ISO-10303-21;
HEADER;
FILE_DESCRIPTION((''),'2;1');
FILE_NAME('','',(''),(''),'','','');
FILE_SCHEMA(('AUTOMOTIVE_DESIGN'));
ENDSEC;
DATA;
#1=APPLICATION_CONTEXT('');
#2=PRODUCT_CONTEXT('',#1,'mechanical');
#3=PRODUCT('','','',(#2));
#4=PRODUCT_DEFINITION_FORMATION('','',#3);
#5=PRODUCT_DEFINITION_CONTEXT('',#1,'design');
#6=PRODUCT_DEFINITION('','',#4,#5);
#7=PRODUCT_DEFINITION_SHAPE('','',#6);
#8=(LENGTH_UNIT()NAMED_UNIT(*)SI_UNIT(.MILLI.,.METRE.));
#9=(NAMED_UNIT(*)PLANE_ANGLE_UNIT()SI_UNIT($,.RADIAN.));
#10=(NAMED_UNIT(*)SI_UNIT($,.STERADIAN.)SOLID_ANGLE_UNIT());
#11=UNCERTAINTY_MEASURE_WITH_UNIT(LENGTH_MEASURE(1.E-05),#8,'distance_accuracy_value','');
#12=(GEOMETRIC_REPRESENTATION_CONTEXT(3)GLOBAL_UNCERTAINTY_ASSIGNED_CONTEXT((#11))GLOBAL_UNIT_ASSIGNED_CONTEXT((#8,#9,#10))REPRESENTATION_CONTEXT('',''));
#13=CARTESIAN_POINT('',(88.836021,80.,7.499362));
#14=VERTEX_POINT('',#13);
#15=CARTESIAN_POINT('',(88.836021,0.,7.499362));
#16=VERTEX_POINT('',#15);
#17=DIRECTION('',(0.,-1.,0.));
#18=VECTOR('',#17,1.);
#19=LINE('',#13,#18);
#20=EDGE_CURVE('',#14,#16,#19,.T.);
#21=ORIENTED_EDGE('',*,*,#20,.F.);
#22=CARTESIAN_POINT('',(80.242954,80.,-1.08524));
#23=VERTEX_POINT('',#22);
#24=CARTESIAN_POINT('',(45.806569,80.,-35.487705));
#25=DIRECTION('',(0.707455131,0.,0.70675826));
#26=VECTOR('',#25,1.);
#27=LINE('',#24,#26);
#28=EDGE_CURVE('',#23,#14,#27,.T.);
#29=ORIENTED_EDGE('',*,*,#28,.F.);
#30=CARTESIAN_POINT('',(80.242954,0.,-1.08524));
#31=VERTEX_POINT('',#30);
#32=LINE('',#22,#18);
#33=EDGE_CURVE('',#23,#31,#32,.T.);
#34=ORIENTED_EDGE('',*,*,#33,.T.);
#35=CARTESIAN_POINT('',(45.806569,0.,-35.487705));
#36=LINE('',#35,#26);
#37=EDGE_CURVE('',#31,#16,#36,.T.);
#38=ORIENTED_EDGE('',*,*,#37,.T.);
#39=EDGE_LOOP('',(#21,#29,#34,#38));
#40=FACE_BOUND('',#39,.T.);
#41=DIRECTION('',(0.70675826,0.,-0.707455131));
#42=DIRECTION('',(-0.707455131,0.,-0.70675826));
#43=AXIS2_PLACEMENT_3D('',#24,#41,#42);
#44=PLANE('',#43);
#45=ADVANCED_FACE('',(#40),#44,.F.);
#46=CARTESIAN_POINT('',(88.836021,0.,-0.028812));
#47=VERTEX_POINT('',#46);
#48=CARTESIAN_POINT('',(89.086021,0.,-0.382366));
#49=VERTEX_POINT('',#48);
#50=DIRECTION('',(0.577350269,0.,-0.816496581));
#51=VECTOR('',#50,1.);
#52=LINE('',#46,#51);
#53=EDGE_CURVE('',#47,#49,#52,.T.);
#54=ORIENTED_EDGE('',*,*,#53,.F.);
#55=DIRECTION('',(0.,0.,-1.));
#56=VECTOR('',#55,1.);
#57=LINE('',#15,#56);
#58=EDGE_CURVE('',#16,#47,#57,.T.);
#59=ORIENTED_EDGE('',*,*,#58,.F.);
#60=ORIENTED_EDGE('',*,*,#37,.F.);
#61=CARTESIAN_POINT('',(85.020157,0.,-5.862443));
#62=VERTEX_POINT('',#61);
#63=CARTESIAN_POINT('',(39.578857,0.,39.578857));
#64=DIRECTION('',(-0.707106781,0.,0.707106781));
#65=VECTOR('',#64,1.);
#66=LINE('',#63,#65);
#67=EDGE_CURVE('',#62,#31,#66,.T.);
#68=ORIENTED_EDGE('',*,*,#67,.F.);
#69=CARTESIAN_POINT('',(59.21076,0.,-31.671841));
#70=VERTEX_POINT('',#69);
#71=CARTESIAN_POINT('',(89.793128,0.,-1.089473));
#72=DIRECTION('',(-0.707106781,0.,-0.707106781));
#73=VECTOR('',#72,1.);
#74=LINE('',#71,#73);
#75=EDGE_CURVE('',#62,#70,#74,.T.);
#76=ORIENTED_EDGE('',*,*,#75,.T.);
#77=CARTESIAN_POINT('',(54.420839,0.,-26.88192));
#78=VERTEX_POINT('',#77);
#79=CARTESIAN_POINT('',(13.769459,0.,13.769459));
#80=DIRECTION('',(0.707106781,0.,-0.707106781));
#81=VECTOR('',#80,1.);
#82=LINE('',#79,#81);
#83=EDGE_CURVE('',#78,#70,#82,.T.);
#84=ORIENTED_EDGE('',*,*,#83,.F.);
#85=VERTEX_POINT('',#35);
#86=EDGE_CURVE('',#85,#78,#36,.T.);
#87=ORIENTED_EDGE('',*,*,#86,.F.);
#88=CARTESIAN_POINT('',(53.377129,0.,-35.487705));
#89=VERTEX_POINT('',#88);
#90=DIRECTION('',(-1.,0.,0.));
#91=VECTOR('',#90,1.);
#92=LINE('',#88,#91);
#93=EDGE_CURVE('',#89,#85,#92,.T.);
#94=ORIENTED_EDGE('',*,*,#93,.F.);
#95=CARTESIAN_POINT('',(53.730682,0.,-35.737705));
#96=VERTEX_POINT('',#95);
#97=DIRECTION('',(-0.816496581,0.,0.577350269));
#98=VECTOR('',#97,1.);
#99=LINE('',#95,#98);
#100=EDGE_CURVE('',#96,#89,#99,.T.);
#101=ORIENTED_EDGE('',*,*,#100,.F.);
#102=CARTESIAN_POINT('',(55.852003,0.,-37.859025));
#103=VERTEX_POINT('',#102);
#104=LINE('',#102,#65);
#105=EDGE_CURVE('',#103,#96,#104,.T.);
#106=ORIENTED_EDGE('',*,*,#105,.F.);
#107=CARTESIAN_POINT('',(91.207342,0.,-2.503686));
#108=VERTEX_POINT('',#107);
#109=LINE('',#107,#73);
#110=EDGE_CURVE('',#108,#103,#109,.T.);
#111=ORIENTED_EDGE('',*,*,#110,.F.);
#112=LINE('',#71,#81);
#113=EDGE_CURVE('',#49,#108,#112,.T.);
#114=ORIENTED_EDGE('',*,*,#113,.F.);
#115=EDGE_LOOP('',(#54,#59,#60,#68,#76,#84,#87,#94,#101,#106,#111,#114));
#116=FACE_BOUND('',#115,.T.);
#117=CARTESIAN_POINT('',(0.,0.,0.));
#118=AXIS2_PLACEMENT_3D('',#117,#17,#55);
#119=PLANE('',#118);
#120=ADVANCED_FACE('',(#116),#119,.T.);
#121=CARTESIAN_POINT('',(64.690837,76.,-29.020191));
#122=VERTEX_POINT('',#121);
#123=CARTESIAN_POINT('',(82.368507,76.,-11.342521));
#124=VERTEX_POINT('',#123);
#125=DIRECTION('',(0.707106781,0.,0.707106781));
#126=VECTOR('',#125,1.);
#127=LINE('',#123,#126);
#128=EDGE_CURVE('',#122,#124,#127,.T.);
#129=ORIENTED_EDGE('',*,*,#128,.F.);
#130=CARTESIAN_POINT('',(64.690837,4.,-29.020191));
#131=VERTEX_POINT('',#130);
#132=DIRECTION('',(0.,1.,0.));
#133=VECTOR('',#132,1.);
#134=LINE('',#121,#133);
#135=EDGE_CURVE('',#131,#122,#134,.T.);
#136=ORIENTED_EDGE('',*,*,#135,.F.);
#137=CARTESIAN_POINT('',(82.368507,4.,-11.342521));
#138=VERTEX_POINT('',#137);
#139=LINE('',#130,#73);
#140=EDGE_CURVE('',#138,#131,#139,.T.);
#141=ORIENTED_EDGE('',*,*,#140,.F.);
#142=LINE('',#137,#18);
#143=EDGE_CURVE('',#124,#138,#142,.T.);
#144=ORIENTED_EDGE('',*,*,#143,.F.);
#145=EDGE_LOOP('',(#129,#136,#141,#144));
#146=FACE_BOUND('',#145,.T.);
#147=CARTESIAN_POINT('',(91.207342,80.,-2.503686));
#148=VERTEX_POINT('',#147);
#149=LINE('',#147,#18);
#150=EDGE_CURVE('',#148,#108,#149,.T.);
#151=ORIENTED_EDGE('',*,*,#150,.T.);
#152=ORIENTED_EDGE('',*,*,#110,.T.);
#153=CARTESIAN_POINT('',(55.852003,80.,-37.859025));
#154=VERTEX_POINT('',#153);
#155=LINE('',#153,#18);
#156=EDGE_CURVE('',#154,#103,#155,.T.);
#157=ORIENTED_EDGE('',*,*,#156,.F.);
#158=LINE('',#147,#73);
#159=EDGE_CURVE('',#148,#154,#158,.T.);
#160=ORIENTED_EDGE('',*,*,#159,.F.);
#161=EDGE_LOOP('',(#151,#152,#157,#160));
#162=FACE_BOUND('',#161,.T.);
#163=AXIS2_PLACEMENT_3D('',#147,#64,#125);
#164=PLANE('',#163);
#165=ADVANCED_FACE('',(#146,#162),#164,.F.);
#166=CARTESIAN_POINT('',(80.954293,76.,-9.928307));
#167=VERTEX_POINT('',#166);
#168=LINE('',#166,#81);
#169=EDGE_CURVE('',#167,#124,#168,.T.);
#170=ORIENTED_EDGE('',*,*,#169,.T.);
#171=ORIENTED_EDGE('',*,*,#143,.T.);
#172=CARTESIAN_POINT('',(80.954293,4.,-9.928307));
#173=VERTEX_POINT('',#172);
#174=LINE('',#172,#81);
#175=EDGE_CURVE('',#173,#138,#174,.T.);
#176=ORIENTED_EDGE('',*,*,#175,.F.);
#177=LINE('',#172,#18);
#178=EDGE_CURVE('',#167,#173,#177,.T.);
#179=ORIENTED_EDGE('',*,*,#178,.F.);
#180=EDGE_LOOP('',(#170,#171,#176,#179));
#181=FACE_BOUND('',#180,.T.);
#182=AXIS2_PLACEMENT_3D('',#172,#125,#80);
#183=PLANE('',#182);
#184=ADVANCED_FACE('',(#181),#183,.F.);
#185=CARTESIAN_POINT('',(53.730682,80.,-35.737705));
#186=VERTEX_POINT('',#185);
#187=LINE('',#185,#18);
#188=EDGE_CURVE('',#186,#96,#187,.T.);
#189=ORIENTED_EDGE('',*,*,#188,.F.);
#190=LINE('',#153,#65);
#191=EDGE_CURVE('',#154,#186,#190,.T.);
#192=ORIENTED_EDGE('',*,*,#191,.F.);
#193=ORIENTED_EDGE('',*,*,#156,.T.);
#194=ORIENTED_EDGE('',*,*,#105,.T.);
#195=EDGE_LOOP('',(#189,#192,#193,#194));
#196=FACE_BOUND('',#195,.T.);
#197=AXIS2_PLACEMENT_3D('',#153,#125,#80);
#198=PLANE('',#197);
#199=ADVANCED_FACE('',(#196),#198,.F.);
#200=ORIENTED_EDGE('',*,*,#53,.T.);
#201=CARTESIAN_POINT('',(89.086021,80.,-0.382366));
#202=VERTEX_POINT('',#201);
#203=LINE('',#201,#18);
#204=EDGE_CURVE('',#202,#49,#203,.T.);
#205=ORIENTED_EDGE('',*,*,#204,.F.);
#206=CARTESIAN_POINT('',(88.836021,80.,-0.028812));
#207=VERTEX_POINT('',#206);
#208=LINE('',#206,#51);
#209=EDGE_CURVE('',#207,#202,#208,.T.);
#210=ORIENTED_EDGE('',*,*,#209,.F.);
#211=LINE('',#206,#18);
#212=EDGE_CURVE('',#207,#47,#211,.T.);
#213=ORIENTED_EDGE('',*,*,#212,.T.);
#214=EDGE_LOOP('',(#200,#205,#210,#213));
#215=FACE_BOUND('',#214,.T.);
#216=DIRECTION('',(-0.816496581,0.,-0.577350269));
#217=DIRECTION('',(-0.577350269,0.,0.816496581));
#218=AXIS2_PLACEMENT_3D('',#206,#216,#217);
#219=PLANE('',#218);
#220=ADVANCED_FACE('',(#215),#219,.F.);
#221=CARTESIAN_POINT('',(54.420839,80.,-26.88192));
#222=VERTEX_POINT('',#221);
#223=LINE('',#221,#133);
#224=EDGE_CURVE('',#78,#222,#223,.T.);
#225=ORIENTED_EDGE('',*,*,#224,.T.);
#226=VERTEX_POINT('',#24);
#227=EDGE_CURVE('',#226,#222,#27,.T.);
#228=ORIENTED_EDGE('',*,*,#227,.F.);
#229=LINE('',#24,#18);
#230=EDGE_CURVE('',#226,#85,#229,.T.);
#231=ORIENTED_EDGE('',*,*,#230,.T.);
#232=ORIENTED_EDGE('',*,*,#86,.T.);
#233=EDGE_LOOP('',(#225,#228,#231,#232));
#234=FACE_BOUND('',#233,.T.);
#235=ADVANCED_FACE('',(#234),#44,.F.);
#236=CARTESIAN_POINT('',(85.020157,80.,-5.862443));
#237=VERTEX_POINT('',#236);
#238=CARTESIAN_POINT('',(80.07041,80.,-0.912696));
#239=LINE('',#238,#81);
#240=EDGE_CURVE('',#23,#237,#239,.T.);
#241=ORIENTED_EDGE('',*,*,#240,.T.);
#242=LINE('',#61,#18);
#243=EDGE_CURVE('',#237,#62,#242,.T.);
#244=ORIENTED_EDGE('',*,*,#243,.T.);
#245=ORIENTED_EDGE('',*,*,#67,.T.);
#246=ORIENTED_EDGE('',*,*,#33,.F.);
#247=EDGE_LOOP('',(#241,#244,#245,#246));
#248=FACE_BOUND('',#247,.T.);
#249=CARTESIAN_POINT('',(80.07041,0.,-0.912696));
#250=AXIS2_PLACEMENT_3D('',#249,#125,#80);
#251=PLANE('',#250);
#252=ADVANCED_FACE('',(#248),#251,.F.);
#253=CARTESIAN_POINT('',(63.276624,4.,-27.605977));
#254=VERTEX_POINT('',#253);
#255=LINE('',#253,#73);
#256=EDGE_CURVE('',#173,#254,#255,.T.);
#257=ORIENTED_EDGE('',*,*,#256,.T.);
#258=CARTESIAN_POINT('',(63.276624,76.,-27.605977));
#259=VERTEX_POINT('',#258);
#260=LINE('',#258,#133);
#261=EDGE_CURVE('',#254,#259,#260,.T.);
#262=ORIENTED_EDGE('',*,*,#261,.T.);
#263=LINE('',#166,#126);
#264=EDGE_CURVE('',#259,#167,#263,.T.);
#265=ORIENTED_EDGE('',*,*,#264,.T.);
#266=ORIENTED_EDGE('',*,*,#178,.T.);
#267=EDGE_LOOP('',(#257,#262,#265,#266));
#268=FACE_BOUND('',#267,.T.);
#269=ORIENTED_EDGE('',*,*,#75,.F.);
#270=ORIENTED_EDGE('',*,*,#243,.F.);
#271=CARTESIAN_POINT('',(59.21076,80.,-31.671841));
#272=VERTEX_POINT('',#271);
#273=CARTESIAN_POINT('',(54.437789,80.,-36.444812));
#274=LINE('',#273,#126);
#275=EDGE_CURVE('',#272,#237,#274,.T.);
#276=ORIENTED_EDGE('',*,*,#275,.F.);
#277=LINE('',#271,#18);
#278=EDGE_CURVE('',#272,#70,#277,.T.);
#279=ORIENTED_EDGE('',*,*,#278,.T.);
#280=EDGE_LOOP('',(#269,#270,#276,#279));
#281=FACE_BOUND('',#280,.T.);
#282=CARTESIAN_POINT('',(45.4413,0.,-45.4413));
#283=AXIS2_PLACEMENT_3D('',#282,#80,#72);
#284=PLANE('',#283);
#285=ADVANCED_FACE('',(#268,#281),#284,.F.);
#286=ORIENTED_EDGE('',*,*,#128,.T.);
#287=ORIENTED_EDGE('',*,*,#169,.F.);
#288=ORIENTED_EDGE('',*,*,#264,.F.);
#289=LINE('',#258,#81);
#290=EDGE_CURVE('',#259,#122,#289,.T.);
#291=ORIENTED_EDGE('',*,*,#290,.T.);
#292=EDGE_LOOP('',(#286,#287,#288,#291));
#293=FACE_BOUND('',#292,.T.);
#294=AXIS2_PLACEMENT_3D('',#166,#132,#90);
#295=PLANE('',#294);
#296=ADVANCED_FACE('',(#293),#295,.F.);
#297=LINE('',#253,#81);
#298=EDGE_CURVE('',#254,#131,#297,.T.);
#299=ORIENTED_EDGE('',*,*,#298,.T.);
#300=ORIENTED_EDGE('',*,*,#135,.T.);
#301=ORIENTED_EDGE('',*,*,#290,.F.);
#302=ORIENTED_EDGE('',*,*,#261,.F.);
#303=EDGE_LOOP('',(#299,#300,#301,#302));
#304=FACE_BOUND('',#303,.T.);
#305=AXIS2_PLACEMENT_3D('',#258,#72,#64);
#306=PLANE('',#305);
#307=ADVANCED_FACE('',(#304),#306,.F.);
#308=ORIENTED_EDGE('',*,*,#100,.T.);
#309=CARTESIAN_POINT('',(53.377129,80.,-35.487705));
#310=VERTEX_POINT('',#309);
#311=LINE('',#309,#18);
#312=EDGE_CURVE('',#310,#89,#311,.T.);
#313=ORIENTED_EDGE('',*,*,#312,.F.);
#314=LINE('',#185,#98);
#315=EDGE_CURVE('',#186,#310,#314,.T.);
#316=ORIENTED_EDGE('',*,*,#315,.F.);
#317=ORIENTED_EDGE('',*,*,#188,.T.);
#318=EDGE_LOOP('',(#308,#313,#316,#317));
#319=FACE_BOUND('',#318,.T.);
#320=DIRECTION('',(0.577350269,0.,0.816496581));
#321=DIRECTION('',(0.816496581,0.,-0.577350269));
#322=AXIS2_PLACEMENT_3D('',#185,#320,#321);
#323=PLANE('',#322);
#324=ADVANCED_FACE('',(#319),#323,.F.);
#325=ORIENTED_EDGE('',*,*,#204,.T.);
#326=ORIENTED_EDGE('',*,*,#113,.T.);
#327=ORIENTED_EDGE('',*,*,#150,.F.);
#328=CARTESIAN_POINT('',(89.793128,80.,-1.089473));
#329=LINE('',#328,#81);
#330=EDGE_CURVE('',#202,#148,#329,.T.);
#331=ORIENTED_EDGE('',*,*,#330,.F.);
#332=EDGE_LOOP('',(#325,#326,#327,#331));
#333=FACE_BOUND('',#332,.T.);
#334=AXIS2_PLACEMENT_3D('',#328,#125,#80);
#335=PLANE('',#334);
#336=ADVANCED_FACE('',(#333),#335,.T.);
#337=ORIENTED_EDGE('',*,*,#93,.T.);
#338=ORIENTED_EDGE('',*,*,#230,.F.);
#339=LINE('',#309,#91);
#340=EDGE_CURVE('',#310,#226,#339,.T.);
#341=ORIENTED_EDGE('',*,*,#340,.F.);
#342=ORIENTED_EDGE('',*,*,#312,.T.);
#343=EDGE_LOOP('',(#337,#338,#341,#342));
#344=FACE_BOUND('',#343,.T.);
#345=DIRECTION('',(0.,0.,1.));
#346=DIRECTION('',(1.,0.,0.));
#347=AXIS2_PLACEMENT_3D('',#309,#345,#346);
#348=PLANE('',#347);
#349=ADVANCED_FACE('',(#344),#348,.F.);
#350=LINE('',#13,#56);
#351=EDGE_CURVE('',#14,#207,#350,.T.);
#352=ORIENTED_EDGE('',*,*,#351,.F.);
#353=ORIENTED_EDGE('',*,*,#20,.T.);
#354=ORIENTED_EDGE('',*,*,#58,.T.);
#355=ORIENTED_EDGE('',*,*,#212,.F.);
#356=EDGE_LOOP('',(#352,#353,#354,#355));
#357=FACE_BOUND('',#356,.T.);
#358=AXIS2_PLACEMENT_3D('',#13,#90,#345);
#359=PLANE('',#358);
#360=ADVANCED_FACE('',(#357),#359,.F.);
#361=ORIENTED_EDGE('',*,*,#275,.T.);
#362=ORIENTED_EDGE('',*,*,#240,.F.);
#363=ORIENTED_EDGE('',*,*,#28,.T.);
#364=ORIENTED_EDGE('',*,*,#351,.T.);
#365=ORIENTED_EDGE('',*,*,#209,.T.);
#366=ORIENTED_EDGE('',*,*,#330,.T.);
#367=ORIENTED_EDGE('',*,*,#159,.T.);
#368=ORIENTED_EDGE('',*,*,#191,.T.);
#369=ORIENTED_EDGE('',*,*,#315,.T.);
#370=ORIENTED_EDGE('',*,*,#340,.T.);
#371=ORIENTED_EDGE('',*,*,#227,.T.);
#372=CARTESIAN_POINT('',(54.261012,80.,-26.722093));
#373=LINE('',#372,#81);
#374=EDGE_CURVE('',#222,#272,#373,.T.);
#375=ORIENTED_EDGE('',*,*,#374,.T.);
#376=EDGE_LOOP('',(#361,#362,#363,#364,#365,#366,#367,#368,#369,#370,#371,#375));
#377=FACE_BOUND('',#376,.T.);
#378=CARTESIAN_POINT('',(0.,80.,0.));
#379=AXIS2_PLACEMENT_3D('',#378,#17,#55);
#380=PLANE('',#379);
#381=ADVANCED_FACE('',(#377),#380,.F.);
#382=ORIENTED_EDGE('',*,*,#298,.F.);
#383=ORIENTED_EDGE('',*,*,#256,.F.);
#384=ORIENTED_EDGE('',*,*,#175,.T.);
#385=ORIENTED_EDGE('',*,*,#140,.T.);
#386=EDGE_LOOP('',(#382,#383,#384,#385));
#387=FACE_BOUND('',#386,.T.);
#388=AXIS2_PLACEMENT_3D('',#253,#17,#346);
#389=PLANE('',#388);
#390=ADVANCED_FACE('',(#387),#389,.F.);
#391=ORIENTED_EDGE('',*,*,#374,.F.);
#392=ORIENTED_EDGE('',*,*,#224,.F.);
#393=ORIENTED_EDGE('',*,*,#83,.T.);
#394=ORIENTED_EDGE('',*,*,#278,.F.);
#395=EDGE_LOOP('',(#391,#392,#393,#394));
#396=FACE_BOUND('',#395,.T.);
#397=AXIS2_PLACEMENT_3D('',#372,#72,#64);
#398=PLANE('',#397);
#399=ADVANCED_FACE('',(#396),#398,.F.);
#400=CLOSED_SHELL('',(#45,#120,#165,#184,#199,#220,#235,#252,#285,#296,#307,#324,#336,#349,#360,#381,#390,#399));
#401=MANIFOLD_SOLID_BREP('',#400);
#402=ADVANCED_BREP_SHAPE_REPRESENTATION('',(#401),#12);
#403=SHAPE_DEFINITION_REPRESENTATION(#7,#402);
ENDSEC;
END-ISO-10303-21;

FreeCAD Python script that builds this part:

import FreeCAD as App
import Part
import Sketcher
from FreeCAD import Vector
Q = App.Units.Quantity

doc = App.newDocument("Part")
params = doc.addObject("Spreadsheet::Sheet", "Params")
for row, (alias, value) in enumerate([
    ("sketch1_length", "3 mm"),
    ("sketch1_length2", "50 mm"),
    ("pad1_length", "80 mm"),
    ("sketch2_height", "80 mm"),
    ("sketch2_width", "36.5 mm"),
    ("pocket1_length", "9 mm"),
    ("sketch3_width", "50 mm"),
    ("sketch3_width2", "25 mm"),
    ("sketch3_height", "80 mm"),
    ("sketch3_height2", "72 mm"),
    ("pad2_length", "2 mm"),
], start=1):
    params.set(f"A{row}", alias)
    params.set(f"B{row}", "=" + value)
    params.setAlias(f"B{row}", alias)

body = doc.addObject("PartDesign::Body", "Body")
body.AllowCompound = True

# Sketch on XZ plane
sketch1 = body.newObject("Sketcher::SketchObject", "Sketch")
sketch1.AttachmentSupport = (doc.getObject("XZ_Plane"), [""])
sketch1.MapMode = "FlatFace"
sketch1.addGeometry([
    Part.LineSegment(Vector(89.086021, -0.382366, 0), Vector(91.207342, -2.503686, 0)),  # 0
    Part.LineSegment(Vector(91.207342, -2.503686, 0), Vector(55.852003, -37.859025, 0)),  # 1
    Part.LineSegment(Vector(55.852003, -37.859025, 0), Vector(53.730682, -35.737705, 0)),  # 2
    Part.LineSegment(Vector(53.730682, -35.737705, 0), Vector(53.377129, -35.487705, 0)),  # 3
    Part.LineSegment(Vector(53.377129, -35.487705, 0), Vector(45.806569, -35.487705, 0)),  # 4
    Part.LineSegment(Vector(45.806569, -35.487705, 0), Vector(88.836021, 7.499362, 0)),  # 5
    Part.LineSegment(Vector(88.836021, 7.499362, 0), Vector(88.836021, -0.028812, 0)),  # 6
    Part.LineSegment(Vector(88.836021, -0.028812, 0), Vector(89.086021, -0.382366, 0)),  # 7
], False)
sketch1.addConstraint([
    Sketcher.Constraint("Coincident", 0, 2, 1, 1),
    Sketcher.Constraint("Coincident", 1, 2, 2, 1),
    Sketcher.Constraint("Coincident", 2, 2, 3, 1),
    Sketcher.Constraint("Coincident", 3, 2, 4, 1),
    Sketcher.Constraint("Coincident", 4, 2, 5, 1),
    Sketcher.Constraint("Coincident", 5, 2, 6, 1),
    Sketcher.Constraint("Coincident", 6, 2, 7, 1),
    Sketcher.Constraint("Coincident", 7, 2, 0, 1),
    Sketcher.Constraint("Horizontal", 4),
    Sketcher.Constraint("Vertical", 6),
    Sketcher.Constraint("Perpendicular", 0, 1),
    Sketcher.Constraint("Perpendicular", 1, 2),
    Sketcher.Constraint("Equal", 0, 2),
    Sketcher.Constraint("Equal", 3, 7),
    Sketcher.Constraint("Angle", 0, Q("-45 deg")),
    Sketcher.Constraint("Distance", 0, Q("3 mm")),
    Sketcher.Constraint("Distance", 1, Q("50 mm")),
    Sketcher.Constraint("DistanceY", 2, 2, 3, 2, Q("0.25 mm")),
    Sketcher.Constraint("DistanceX", 6, 2, 7, 2, Q("0.25 mm")),
    Sketcher.Constraint("DistanceX", 4, 2, 4, 1, Q("7.57056 mm")),
    Sketcher.Constraint("Distance", 5, Q("60.822872 mm")),
    Sketcher.Constraint("DistanceY", 6, 2, 6, 1, Q("7.528175 mm")),
    Sketcher.Constraint("DistanceX", -1, 1, 0, 2, Q("91.207342 mm")),
    Sketcher.Constraint("DistanceY", 0, 2, -1, 1, Q("2.503686 mm")),
])
sketch1.setExpression("Constraints[15]", "Params.sketch1_length")
sketch1.setExpression("Constraints[16]", "Params.sketch1_length2")
pad1 = body.newObject("PartDesign::Pad", "Pad")
pad1.Profile = sketch1
pad1.setExpression("Length", "Params.pad1_length")
pad1.Reversed = True

# Sketch on an angled plane
sketch2 = body.newObject("Sketcher::SketchObject", "Sketch001")
sketch2.Placement = App.Placement(Vector(46.855514, 0, -46.855514), App.Rotation(Vector(-0.707106781, 0, -0.707106781), Vector(0, 0.999999999, 0), Vector(0.707106781, 0, -0.707106781), "ZXY"))
sketch2.addGeometry([
    Part.LineSegment(Vector(-55.972956, 80, 0), Vector(-55.972956, 0, 0)),
    Part.LineSegment(Vector(-55.972956, 0, 0), Vector(-19.472956, 0, 0)),
    Part.LineSegment(Vector(-19.472956, 0, 0), Vector(-19.472956, 80, 0)),
    Part.LineSegment(Vector(-19.472956, 80, 0), Vector(-55.972956, 80, 0)),
], False)
sketch2.addConstraint([
    Sketcher.Constraint("Coincident", 0, 2, 1, 1),
    Sketcher.Constraint("Coincident", 1, 2, 2, 1),
    Sketcher.Constraint("Coincident", 2, 2, 3, 1),
    Sketcher.Constraint("Coincident", 3, 2, 0, 1),
    Sketcher.Constraint("Vertical", 0),
    Sketcher.Constraint("Horizontal", 1),
    Sketcher.Constraint("Vertical", 2),
    Sketcher.Constraint("Horizontal", 3),
    Sketcher.Constraint("PointOnObject", 0, 2, -1),
    Sketcher.Constraint("DistanceY", 0, 2, 0, 1, Q("80 mm")),
    Sketcher.Constraint("DistanceX", 1, 1, 1, 2, Q("36.5 mm")),
    Sketcher.Constraint("DistanceX", 0, 2, -1, 1, Q("55.972956 mm")),
])
sketch2.setExpression("Constraints[9]", "Params.sketch2_height")
sketch2.setExpression("Constraints[10]", "Params.sketch2_width")
pocket1 = body.newObject("PartDesign::Pocket", "Pocket")
pocket1.Profile = sketch2
pocket1.setExpression("Length", "Params.pocket1_length")

# Sketch on an angled plane
sketch3 = body.newObject("Sketcher::SketchObject", "Sketch002")
sketch3.Placement = App.Placement(Vector(46.855514, 0, -46.855514), App.Rotation(Vector(-0.707106781, 0, -0.707106781), Vector(0, 0.999999999, 0), Vector(0.707106781, 0, -0.707106781), "ZXY"))
sketch3.addGeometry([
    Part.LineSegment(Vector(-62.722956, 80, 0), Vector(-62.722956, 0, 0)),  # 0
    Part.LineSegment(Vector(-62.722956, 0, 0), Vector(-12.722956, 0, 0)),  # 1
    Part.LineSegment(Vector(-12.722956, 0, 0), Vector(-12.722956, 80, 0)),  # 2
    Part.LineSegment(Vector(-12.722956, 80, 0), Vector(-62.722956, 80, 0)),  # 3
    Part.LineSegment(Vector(-25.222956, 4, 0), Vector(-50.222956, 4, 0)),  # 4
    Part.LineSegment(Vector(-50.222956, 4, 0), Vector(-50.222956, 76, 0)),  # 5
    Part.LineSegment(Vector(-50.222956, 76, 0), Vector(-25.222956, 76, 0)),  # 6
    Part.LineSegment(Vector(-25.222956, 76, 0), Vector(-25.222956, 4, 0)),  # 7
], False)
sketch3.addConstraint([
    Sketcher.Constraint("Coincident", 0, 2, 1, 1),
    Sketcher.Constraint("Coincident", 1, 2, 2, 1),
    Sketcher.Constraint("Coincident", 2, 2, 3, 1),
    Sketcher.Constraint("Coincident", 3, 2, 0, 1),
    Sketcher.Constraint("Coincident", 4, 2, 5, 1),
    Sketcher.Constraint("Coincident", 5, 2, 6, 1),
    Sketcher.Constraint("Coincident", 6, 2, 7, 1),
    Sketcher.Constraint("Coincident", 7, 2, 4, 1),
    Sketcher.Constraint("Vertical", 0),
    Sketcher.Constraint("Horizontal", 1),
    Sketcher.Constraint("Vertical", 2),
    Sketcher.Constraint("Horizontal", 3),
    Sketcher.Constraint("Horizontal", 4),
    Sketcher.Constraint("Vertical", 5),
    Sketcher.Constraint("Horizontal", 6),
    Sketcher.Constraint("Vertical", 7),
    Sketcher.Constraint("PointOnObject", 0, 2, -1),
    Sketcher.Constraint("DistanceX", 1, 1, 1, 2, Q("50 mm")),
    Sketcher.Constraint("DistanceX", 4, 2, 4, 1, Q("25 mm")),
    Sketcher.Constraint("DistanceY", 0, 2, 0, 1, Q("80 mm")),
    Sketcher.Constraint("DistanceY", 5, 1, 5, 2, Q("72 mm")),
    Sketcher.Constraint("DistanceY", -1, 1, 4, 2, Q("4 mm")),
    Sketcher.Constraint("DistanceX", 0, 2, 4, 2, Q("12.5 mm")),
    Sketcher.Constraint("DistanceX", 0, 2, -1, 1, Q("62.722956 mm")),
])
sketch3.setExpression("Constraints[17]", "Params.sketch3_width")
sketch3.setExpression("Constraints[18]", "Params.sketch3_width2")
sketch3.setExpression("Constraints[19]", "Params.sketch3_height")
sketch3.setExpression("Constraints[20]", "Params.sketch3_height2")
pad2 = body.newObject("PartDesign::Pad", "Pad001")
pad2.Profile = sketch3
pad2.setExpression("Length", "Params.pad2_length")
pad2.Reversed = True

doc.recompute()
